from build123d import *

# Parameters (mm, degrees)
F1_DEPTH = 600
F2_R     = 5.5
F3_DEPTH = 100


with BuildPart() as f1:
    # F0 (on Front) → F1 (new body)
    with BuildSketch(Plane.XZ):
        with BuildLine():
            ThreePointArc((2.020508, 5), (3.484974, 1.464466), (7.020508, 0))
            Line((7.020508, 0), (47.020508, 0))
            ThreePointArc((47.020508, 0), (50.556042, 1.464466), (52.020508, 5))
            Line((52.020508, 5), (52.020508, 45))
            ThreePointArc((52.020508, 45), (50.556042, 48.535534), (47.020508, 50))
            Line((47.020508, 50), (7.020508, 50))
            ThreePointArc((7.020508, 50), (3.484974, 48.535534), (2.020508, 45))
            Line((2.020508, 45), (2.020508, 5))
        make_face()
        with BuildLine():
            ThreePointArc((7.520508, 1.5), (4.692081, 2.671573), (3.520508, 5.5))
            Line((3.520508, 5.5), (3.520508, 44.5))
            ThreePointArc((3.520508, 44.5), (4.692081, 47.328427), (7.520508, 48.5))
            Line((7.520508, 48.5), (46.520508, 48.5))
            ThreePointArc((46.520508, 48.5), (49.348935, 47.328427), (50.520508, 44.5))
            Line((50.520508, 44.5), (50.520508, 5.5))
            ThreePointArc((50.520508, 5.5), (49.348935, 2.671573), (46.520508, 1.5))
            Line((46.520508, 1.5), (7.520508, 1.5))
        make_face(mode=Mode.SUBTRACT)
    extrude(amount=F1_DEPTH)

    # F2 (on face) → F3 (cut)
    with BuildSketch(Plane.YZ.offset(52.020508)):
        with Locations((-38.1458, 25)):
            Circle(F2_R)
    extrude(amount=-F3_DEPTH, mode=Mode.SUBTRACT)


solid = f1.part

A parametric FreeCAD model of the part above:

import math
import FreeCAD as App
import Part
import Sketcher

V = App.Vector

doc = App.newDocument("Part")
body = doc.addObject("PartDesign::Body", "Body")

# Sketch on XZ plane
sketch1 = doc.addObject("Sketcher::SketchObject", "Sketch")
body.addObject(sketch1)
sketch1.AttachmentSupport = (doc.XZ_Plane, [""])
sketch1.MapMode = "FlatFace"
sketch1.addGeometry([
    Part.ArcOfCircle(Part.Circle(V(7.020508, 5, 0), V(0, 0, 1), 5), math.radians(179.999996), math.radians(270.000004)),  # 0
    Part.LineSegment(V(7.020508, 0, 0), V(47.020508, 0, 0)),  # 1
    Part.ArcOfCircle(Part.Circle(V(47.020508, 5, 0), V(0, 0, 1), 5), math.radians(-90.000004), math.radians(0.000004)),  # 2
    Part.LineSegment(V(52.020508, 5, 0), V(52.020508, 45, 0)),  # 3
    Part.ArcOfCircle(Part.Circle(V(47.020508, 45, 0), V(0, 0, 1), 5), math.radians(-0.000004), math.radians(90.000004)),  # 4
    Part.LineSegment(V(47.020508, 50, 0), V(7.020508, 50, 0)),  # 5
    Part.ArcOfCircle(Part.Circle(V(7.020508, 45, 0), V(0, 0, 1), 5), math.radians(89.999996), math.radians(180.000004)),  # 6
    Part.LineSegment(V(2.020508, 45, 0), V(2.020508, 5, 0)),  # 7
    Part.LineSegment(V(46.520508, 1.5, 0), V(7.520508, 1.5, 0)),  # 8
    Part.ArcOfCircle(Part.Circle(V(7.520508, 5.5, 0), V(0, 0, 1), 4), math.radians(-179.999994), math.radians(-90.000006)),  # 9
    Part.LineSegment(V(3.520508, 5.5, 0), V(3.520508, 44.5, 0)),  # 10
    Part.ArcOfCircle(Part.Circle(V(7.520508, 44.5, 0), V(0, 0, 1), 4), math.radians(90.000006), math.radians(179.999994)),  # 11
    Part.LineSegment(V(7.520508, 48.5, 0), V(46.520508, 48.5, 0)),  # 12
    Part.ArcOfCircle(Part.Circle(V(46.520508, 44.5, 0), V(0, 0, 1), 4), math.radians(0.000006), math.radians(89.999994)),  # 13
    Part.LineSegment(V(50.520508, 44.5, 0), V(50.520508, 5.5, 0)),  # 14
    Part.ArcOfCircle(Part.Circle(V(46.520508, 5.5, 0), V(0, 0, 1), 4), math.radians(-89.999994), math.radians(-0.000006)),  # 15
], False)
sketch1.addConstraint([
    Sketcher.Constraint("Tangent", 0, 2, 1, 1),
    Sketcher.Constraint("Tangent", 1, 2, 2, 1),
    Sketcher.Constraint("Tangent", 2, 2, 3, 1),
    Sketcher.Constraint("Tangent", 3, 2, 4, 1),
    Sketcher.Constraint("Tangent", 4, 2, 5, 1),
    Sketcher.Constraint("Tangent", 5, 2, 6, 1),
    Sketcher.Constraint("Tangent", 6, 2, 7, 1),
    Sketcher.Constraint("Tangent", 7, 2, 0, 1),
    Sketcher.Constraint("Tangent", 8, 2, 9, 2),
    Sketcher.Constraint("Tangent", 9, 1, 10, 1),
    Sketcher.Constraint("Tangent", 10, 2, 11, 2),
    Sketcher.Constraint("Tangent", 11, 1, 12, 1),
    Sketcher.Constraint("Tangent", 12, 2, 13, 2),
    Sketcher.Constraint("Tangent", 13, 1, 14, 1),
    Sketcher.Constraint("Tangent", 14, 2, 15, 2),
    Sketcher.Constraint("Tangent", 15, 1, 8, 1),
    Sketcher.Constraint("Horizontal", 1),
    Sketcher.Constraint("Vertical", 3),
    Sketcher.Constraint("Horizontal", 5),
    Sketcher.Constraint("Vertical", 7),
    Sketcher.Constraint("Horizontal", 8),
    Sketcher.Constraint("Vertical", 10),
    Sketcher.Constraint("Horizontal", 12),
    Sketcher.Constraint("Vertical", 14),
    Sketcher.Constraint("Equal", 0, 2),
    Sketcher.Constraint("Equal", 2, 4),
    Sketcher.Constraint("Equal", 4, 6),
    Sketcher.Constraint("Equal", 9, 11),
    Sketcher.Constraint("Equal", 11, 13),
    Sketcher.Constraint("Equal", 13, 15),
    Sketcher.Constraint("PointOnObject", 0, 2, -1),
    Sketcher.Constraint("Equal", 5, 3),
    Sketcher.Constraint("Equal", 12, 10),
    Sketcher.Constraint("Radius", 0, 5.0),
    Sketcher.Constraint("Radius", 9, 4.0),
    Sketcher.Constraint("DistanceX", 1, 1, 1, 2, 40.0),
    Sketcher.Constraint("DistanceX", 8, 2, 8, 1, 39.0),
    Sketcher.Constraint("DistanceY", -1, 1, 9, 3, 5.5),
    Sketcher.Constraint("DistanceX", 0, 3, 9, 3, 0.500001),
    Sketcher.Constraint("DistanceX", -1, 1, 2, 3, 47.020508),
])
pad1 = doc.addObject("PartDesign::Pad", "Pad")
body.addObject(pad1)
pad1.Profile = sketch1
pad1.Length = 600

# Sketch on YZ plane
sketch2 = doc.addObject("Sketcher::SketchObject", "Sketch001")
body.addObject(sketch2)
sketch2.AttachmentSupport = (doc.YZ_Plane, [""])
sketch2.MapMode = "FlatFace"
sketch2.AttachmentOffset = App.Placement(V(0, 0, 52.020508), App.Rotation())
sketch2.addGeometry(Part.Circle(V(-38.1458, 25, 0), V(0, 0, 1), 5.5), False)
sketch2.addConstraint([
    Sketcher.Constraint("Diameter", 0, 11.0),
    Sketcher.Constraint("DistanceY", -1, 1, 0, 3, 25.0),
    Sketcher.Constraint("DistanceX", 0, 3, -1, 1, 38.1458),
])
pocket1 = doc.addObject("PartDesign::Pocket", "Pocket")
body.addObject(pocket1)
pocket1.Profile = sketch2
pocket1.Length = 100

doc.recompute()
